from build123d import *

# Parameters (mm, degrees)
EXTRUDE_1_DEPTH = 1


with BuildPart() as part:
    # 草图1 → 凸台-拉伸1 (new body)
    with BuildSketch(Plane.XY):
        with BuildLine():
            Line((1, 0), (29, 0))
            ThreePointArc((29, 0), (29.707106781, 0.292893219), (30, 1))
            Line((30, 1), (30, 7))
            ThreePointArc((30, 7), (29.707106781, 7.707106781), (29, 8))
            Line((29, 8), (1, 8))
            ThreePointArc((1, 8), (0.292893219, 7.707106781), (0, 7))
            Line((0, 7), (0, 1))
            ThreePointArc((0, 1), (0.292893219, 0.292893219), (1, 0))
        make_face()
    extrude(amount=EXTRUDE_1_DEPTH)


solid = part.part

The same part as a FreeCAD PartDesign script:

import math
import FreeCAD as App
import Part
import Sketcher
Q = App.Units.Quantity

doc = App.newDocument("Part")
body = doc.addObject("PartDesign::Body", "Body")

sketch1 = body.newObject("Sketcher::SketchObject", "Sketch")
sketch1.AttachmentSupport = (doc.getObject("XY_Plane"), [""])
sketch1.MapMode = "FlatFace"
sketch1.addGeometry([
    Part.LineSegment(App.Vector(1, 0, 0), App.Vector(29, 0, 0)),
    Part.ArcOfCircle(Part.Circle(App.Vector(29, 1, 0), App.Vector(0, 0, 1), 1), math.radians(-90), math.radians(0)),
    Part.LineSegment(App.Vector(30, 1, 0), App.Vector(30, 7, 0)),
    Part.ArcOfCircle(Part.Circle(App.Vector(29, 7, 0), App.Vector(0, 0, 1), 1), math.radians(0), math.radians(90)),
    Part.LineSegment(App.Vector(29, 8, 0), App.Vector(1, 8, 0)),
    Part.ArcOfCircle(Part.Circle(App.Vector(1, 7, 0), App.Vector(0, 0, 1), 1), math.radians(90), math.radians(180)),
    Part.LineSegment(App.Vector(0, 7, 0), App.Vector(0, 1, 0)),
    Part.ArcOfCircle(Part.Circle(App.Vector(1, 1, 0), App.Vector(0, 0, 1), 1), math.radians(-180), math.radians(-90)),
], False)
sketch1.addConstraint([
    Sketcher.Constraint("Tangent", 0, 2, 1, 1),
    Sketcher.Constraint("Tangent", 1, 2, 2, 1),
    Sketcher.Constraint("Tangent", 2, 2, 3, 1),
    Sketcher.Constraint("Tangent", 3, 2, 4, 1),
    Sketcher.Constraint("Tangent", 4, 2, 5, 1),
    Sketcher.Constraint("Tangent", 5, 2, 6, 1),
    Sketcher.Constraint("Tangent", 6, 2, 7, 1),
    Sketcher.Constraint("Tangent", 7, 2, 0, 1),
    Sketcher.Constraint("Horizontal", 0),
    Sketcher.Constraint("Vertical", 2),
    Sketcher.Constraint("Horizontal", 4),
    Sketcher.Constraint("Vertical", 6),
    Sketcher.Constraint("Equal", 1, 3),
    Sketcher.Constraint("Equal", 3, 5),
    Sketcher.Constraint("Equal", 5, 7),
    Sketcher.Constraint("PointOnObject", 0, 2, -1),
    Sketcher.Constraint("PointOnObject", 5, 2, -2),
    Sketcher.Constraint("Radius", 1, Q("1 mm")),
    Sketcher.Constraint("DistanceX", 0, 1, 0, 2, Q("28 mm")),
    Sketcher.Constraint("DistanceY", 2, 1, 2, 2, Q("6 mm")),
])
pad1 = body.newObject("PartDesign::Pad", "Pad")
pad1.Profile = sketch1
pad1.Length = 1

doc.recompute()
